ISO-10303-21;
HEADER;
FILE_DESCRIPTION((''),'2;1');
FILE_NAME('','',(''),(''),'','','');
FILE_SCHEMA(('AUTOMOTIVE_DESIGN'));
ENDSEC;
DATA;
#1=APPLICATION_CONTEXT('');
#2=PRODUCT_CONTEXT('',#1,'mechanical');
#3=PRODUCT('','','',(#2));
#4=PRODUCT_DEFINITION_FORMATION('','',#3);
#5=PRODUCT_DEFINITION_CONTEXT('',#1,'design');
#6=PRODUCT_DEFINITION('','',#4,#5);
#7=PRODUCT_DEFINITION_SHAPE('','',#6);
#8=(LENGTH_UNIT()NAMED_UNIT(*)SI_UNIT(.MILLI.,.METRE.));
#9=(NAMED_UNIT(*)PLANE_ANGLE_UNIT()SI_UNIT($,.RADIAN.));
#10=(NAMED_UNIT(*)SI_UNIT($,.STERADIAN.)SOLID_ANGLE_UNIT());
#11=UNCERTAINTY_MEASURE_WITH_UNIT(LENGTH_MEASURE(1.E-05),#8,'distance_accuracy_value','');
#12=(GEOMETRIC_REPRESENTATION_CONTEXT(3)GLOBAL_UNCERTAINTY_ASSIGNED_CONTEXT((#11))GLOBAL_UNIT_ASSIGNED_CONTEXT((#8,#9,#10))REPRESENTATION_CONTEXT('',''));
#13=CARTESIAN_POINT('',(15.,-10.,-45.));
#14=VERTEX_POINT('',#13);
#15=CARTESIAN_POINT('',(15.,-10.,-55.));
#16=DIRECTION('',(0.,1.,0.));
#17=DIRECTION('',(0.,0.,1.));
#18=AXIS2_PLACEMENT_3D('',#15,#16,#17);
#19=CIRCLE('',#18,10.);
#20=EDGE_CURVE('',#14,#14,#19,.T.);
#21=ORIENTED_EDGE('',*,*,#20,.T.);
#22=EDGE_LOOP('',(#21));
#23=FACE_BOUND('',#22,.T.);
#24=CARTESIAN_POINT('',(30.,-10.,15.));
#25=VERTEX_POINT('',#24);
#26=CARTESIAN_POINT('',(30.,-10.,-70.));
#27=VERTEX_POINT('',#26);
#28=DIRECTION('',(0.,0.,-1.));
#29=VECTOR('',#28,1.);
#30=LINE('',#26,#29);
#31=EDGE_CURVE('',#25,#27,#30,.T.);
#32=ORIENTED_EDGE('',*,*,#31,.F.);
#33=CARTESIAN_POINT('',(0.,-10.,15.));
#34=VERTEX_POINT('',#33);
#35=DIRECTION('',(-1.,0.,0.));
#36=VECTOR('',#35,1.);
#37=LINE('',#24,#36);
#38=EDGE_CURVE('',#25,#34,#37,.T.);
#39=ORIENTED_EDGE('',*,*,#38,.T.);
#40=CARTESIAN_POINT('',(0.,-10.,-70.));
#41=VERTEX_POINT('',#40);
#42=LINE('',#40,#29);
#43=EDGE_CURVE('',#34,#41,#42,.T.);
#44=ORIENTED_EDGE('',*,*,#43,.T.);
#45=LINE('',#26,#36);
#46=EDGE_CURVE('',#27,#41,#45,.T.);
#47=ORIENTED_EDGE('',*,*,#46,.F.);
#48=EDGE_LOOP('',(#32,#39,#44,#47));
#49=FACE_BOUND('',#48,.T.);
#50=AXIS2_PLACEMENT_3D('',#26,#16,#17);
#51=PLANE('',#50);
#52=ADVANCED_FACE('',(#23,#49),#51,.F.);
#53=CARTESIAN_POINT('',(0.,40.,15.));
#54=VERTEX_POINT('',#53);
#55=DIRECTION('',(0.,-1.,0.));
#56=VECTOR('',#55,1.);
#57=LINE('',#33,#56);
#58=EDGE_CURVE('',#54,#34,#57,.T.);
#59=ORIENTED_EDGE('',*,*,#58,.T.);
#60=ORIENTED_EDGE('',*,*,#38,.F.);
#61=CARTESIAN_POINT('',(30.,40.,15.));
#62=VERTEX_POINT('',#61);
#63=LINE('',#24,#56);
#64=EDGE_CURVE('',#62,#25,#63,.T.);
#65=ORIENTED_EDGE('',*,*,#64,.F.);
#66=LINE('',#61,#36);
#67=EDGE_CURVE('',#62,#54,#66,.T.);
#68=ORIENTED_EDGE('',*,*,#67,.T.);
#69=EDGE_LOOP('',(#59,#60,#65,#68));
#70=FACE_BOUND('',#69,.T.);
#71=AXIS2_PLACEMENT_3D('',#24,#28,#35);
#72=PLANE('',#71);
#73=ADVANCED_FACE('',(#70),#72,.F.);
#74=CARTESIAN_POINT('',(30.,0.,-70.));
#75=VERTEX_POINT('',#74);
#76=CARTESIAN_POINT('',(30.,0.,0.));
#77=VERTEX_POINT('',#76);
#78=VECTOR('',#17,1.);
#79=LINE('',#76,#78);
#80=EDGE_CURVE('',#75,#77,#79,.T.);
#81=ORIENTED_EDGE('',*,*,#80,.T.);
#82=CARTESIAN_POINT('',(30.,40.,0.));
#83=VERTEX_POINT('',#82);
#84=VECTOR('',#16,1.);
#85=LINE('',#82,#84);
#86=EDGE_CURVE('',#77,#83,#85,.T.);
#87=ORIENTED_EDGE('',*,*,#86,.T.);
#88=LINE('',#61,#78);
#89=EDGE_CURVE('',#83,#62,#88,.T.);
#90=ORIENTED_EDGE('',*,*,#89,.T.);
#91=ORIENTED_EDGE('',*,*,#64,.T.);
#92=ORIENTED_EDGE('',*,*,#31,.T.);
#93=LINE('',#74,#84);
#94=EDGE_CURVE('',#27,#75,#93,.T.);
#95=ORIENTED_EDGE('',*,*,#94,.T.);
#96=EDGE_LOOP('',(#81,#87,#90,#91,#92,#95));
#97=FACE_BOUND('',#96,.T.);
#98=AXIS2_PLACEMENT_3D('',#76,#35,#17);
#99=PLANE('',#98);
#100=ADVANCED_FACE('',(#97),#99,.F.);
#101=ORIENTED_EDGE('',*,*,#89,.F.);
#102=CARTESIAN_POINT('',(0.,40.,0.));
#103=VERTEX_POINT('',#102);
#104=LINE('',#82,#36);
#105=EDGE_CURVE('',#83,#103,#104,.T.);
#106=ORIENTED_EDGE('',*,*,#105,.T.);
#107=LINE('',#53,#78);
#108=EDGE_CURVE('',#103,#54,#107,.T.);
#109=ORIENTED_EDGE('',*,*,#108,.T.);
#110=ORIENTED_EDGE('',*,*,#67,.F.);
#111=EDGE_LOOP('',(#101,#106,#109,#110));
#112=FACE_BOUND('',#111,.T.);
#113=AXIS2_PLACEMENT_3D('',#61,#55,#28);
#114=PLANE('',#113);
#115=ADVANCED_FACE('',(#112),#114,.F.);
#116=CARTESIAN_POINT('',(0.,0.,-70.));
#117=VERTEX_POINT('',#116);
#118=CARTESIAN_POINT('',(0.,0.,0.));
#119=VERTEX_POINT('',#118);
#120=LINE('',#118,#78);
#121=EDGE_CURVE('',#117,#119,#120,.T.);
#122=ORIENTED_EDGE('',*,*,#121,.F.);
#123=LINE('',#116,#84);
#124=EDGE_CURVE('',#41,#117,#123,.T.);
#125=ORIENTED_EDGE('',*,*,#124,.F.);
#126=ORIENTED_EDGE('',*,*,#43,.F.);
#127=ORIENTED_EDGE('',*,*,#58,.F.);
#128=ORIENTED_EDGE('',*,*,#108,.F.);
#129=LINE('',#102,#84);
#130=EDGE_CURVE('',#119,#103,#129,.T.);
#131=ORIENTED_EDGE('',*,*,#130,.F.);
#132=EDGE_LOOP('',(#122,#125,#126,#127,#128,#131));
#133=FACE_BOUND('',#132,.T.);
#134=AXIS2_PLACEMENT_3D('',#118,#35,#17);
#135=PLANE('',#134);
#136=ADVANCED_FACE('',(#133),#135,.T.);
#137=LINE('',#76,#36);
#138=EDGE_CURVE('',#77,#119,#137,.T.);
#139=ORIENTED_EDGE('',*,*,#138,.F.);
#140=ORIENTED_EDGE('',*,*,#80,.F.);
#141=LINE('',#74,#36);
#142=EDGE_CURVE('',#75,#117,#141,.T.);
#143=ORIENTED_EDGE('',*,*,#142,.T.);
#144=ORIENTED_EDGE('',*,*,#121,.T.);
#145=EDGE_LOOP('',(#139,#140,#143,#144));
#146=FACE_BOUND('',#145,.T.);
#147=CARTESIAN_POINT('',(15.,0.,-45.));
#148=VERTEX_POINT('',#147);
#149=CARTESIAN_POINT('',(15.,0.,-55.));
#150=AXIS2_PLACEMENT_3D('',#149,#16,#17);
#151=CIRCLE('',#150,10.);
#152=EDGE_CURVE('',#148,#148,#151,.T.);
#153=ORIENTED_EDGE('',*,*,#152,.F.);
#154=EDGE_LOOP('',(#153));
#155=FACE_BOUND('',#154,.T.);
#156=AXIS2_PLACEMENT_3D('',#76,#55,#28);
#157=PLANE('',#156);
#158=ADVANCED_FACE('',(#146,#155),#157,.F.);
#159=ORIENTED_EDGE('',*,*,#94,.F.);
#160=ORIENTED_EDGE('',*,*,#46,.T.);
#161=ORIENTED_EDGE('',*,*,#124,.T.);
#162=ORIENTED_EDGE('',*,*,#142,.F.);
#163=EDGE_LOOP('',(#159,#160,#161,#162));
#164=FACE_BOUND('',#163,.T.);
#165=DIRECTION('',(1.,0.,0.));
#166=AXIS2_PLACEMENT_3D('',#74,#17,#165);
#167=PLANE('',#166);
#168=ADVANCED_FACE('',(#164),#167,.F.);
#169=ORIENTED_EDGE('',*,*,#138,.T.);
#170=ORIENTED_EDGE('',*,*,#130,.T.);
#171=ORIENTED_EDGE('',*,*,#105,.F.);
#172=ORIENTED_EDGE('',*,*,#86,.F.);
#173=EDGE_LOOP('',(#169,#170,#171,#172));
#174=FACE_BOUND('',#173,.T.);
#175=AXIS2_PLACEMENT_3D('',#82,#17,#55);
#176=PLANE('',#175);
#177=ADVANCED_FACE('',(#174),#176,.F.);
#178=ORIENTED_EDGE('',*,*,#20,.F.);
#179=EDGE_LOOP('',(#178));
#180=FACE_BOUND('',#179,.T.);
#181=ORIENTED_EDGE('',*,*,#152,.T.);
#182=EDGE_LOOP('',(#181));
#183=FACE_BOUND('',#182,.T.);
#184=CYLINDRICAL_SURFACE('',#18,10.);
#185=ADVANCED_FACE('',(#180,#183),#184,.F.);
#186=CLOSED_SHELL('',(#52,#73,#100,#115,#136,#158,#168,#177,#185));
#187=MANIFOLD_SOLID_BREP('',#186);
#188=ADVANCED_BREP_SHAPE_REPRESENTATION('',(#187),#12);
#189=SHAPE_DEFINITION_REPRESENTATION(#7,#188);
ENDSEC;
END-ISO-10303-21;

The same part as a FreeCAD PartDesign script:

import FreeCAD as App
import Part
import Sketcher

V = App.Vector

doc = App.newDocument("Part")
body = doc.addObject("PartDesign::Body", "Body")

# Sketch on YZ plane
sketch1 = doc.addObject("Sketcher::SketchObject", "Sketch")
body.addObject(sketch1)
sketch1.AttachmentSupport = (doc.YZ_Plane, [""])
sketch1.MapMode = "FlatFace"
sketch1.addGeometry([
    Part.LineSegment(V(0, 0, 0), V(40, 0, 0)),  # 0
    Part.LineSegment(V(40, 0, 0), V(40, 15, 0)),  # 1
    Part.LineSegment(V(40, 15, 0), V(-10, 15, 0)),  # 2
    Part.LineSegment(V(-10, 15, 0), V(-10, -70, 0)),  # 3
    Part.LineSegment(V(-10, -70, 0), V(0, -70, 0)),  # 4
    Part.LineSegment(V(0, -70, 0), V(0, 0, 0)),  # 5
], False)
sketch1.addConstraint([
    Sketcher.Constraint("Coincident", 0, 2, 1, 1),
    Sketcher.Constraint("Coincident", 1, 2, 2, 1),
    Sketcher.Constraint("Coincident", 2, 2, 3, 1),
    Sketcher.Constraint("Coincident", 3, 2, 4, 1),
    Sketcher.Constraint("Coincident", 4, 2, 5, 1),
    Sketcher.Constraint("Coincident", 5, 2, 0, 1),
    Sketcher.Constraint("Horizontal", 0),
    Sketcher.Constraint("Vertical", 1),
    Sketcher.Constraint("Horizontal", 2),
    Sketcher.Constraint("Vertical", 3),
    Sketcher.Constraint("Horizontal", 4),
    Sketcher.Constraint("Vertical", 5),
    Sketcher.Constraint("Coincident", 5, 2, -1, 1),
    Sketcher.Constraint("DistanceX", 0, 1, 0, 2, 40.0),
    Sketcher.Constraint("DistanceX", 2, 2, 2, 1, 50.0),
    Sketcher.Constraint("DistanceY", 1, 1, 1, 2, 15.0),
    Sketcher.Constraint("DistanceY", 3, 2, 3, 1, 85.0),
])
pad1 = doc.addObject("PartDesign::Pad", "Pad")
body.addObject(pad1)
pad1.Profile = sketch1
pad1.Length = 30

# Sketch on XZ plane
sketch2 = doc.addObject("Sketcher::SketchObject", "Sketch001")
body.addObject(sketch2)
sketch2.AttachmentSupport = (doc.XZ_Plane, [""])
sketch2.MapMode = "FlatFace"
sketch2.addGeometry(Part.Circle(V(15, -55, 0), V(0, 0, 1), 10), False)
sketch2.addConstraint([
    Sketcher.Constraint("Diameter", 0, 20.0),
    Sketcher.Constraint("DistanceX", -1, 1, 0, 3, 15.0),
    Sketcher.Constraint("DistanceY", 0, 3, -1, 1, 55.0),
])
pocket1 = doc.addObject("PartDesign::Pocket", "Pocket")
body.addObject(pocket1)
pocket1.Profile = sketch2
pocket1.Length = 10
pocket1.Reversed = True

doc.recompute()
